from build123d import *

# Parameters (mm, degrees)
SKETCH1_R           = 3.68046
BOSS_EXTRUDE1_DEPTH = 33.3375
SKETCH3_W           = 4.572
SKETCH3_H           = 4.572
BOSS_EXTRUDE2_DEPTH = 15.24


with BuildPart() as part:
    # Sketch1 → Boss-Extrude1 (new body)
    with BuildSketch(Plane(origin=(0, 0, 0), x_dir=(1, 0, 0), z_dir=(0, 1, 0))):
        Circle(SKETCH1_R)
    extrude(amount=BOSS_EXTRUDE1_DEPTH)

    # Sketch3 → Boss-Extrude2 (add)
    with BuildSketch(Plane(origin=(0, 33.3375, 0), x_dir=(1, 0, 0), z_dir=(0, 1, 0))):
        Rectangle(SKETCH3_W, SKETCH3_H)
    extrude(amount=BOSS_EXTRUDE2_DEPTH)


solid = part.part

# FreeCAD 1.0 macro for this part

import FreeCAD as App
import Part
import Sketcher
from FreeCAD import Vector
Q = App.Units.Quantity


def add_polygon(sketch, points):
    """Adds a closed chain of lines whose ends are joined by coincident constraints."""
    first, n = sketch.GeometryCount, len(points)
    for a, b in zip(points, points[1:] + points[:1]):
        sketch.addGeometry(Part.LineSegment(App.Vector(*a, 0), App.Vector(*b, 0)), False)
    for i in range(n):
        sketch.addConstraint(Sketcher.Constraint("Coincident", first + i, 2, first + (i + 1) % n, 1))

doc = App.newDocument("Part")
body = doc.addObject("PartDesign::Body", "Body")

sketch1 = body.newObject("Sketcher::SketchObject", "Sketch")
sketch1.AttachmentSupport = (doc.getObject("XZ_Plane"), [""])
sketch1.MapMode = "FlatFace"
sketch1.addGeometry(Part.Circle(Vector(0, 0, 0), Vector(0, 0, 1), 3.7), False)
sketch1.addConstraint([
    Sketcher.Constraint("Coincident", 0, 3, -1, 1),
    Sketcher.Constraint("Diameter", 0, Q("0.2898 in")),
])
pad1 = body.newObject("PartDesign::Pad", "Pad")
pad1.Profile = sketch1
pad1.Length = Q("1.3125 in")
pad1.Reversed = True

sketch2 = body.newObject("Sketcher::SketchObject", "Sketch001")
sketch2.AttachmentSupport = (doc.getObject("XZ_Plane"), [""])
sketch2.MapMode = "FlatFace"
sketch2.AttachmentOffset = App.Placement(Vector(0, 0, -1.3125 * 25.4), App.Rotation())
add_polygon(sketch2, [(-2.3, -2.3), (-2.3, 2.3), (2.3, 2.3), (2.3, -2.3)])
sketch2.addConstraint([
    Sketcher.Constraint("Vertical", 0),
    Sketcher.Constraint("Horizontal", 1),
    Sketcher.Constraint("Vertical", 2),
    Sketcher.Constraint("Horizontal", 3),
    Sketcher.Constraint("Symmetric", 0, 2, 2, 2, -1, 1),
    Sketcher.Constraint("Equal", 3, 0),
    Sketcher.Constraint("DistanceX", 1, 1, 1, 2, Q("0.18 in")),
])
pad2 = body.newObject("PartDesign::Pad", "Pad001")
pad2.Profile = sketch2
pad2.Length = Q("0.6 in")
pad2.Reversed = True

doc.recompute()
